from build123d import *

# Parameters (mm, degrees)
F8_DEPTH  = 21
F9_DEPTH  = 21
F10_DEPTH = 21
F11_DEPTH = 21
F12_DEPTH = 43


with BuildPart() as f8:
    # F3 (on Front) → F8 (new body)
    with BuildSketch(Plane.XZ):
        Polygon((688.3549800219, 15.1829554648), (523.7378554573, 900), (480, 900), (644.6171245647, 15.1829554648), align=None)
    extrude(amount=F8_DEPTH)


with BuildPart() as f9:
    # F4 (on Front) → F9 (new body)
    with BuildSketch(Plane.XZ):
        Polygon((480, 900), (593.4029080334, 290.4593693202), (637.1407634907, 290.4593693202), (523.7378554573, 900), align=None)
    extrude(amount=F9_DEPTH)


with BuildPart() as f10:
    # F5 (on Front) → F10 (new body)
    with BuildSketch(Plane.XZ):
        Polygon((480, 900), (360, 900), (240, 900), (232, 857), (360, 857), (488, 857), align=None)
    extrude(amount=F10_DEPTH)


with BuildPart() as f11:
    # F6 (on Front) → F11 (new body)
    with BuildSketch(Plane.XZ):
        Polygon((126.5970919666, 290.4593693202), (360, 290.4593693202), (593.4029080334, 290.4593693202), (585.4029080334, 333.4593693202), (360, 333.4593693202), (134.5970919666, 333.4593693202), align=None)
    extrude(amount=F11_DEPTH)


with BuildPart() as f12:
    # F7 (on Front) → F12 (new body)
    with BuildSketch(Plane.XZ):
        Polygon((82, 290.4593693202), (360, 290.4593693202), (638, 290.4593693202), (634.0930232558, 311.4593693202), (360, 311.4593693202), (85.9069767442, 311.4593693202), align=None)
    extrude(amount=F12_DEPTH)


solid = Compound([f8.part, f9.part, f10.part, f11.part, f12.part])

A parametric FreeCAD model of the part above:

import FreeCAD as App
import Part
import Sketcher

V = App.Vector


def add_polygon(sketch, points):
    """Adds a closed chain of lines whose ends are joined by coincident constraints."""
    first, n = sketch.GeometryCount, len(points)
    for a, b in zip(points, points[1:] + points[:1]):
        sketch.addGeometry(Part.LineSegment(App.Vector(*a, 0), App.Vector(*b, 0)), False)
    for i in range(n):
        sketch.addConstraint(Sketcher.Constraint("Coincident", first + i, 2, first + (i + 1) % n, 1))

doc = App.newDocument("Part")
body = doc.addObject("PartDesign::Body", "Body")

sketch1 = doc.addObject("Sketcher::SketchObject", "Sketch")
body.addObject(sketch1)
sketch1.AttachmentSupport = (doc.XZ_Plane, [""])
sketch1.MapMode = "FlatFace"
add_polygon(sketch1, [(688, 15), (524, 900), (480, 900), (645, 15)])
sketch1.addConstraint([
    Sketcher.Constraint("Horizontal", 1),
    Sketcher.Constraint("Horizontal", 3),
    Sketcher.Constraint("Parallel", 0, 2),
    Sketcher.Constraint("Distance", 0, 900.0),
    Sketcher.Constraint("DistanceY", -1, 1, 0, 2, 900.0),
    Sketcher.Constraint("DistanceX", -1, 1, 1, 2, 480.0),
    Sketcher.Constraint("DistanceX", 1, 2, 1, 1, 43.737855),
    Sketcher.Constraint("DistanceX", -1, 1, 3, 2, 688.35498),
])
pad1 = doc.addObject("PartDesign::Pad", "Pad")
body.addObject(pad1)
pad1.Profile = sketch1
pad1.Length = 21
body2 = doc.addObject("PartDesign::Body", "Body001")

sketch2 = doc.addObject("Sketcher::SketchObject", "Sketch001")
body2.addObject(sketch2)
sketch2.AttachmentSupport = (doc.getObject("XZ_Plane001"), [""])
sketch2.MapMode = "FlatFace"
add_polygon(sketch2, [(480, 900), (593, 290), (637, 290), (524, 900)])
sketch2.addConstraint([
    Sketcher.Constraint("Horizontal", 1),
    Sketcher.Constraint("Horizontal", 3),
    Sketcher.Constraint("Parallel", 0, 2),
    Sketcher.Constraint("Distance", 0, 620.0),
    Sketcher.Constraint("DistanceY", -1, 1, 2, 2, 900.0),
    Sketcher.Constraint("DistanceX", -1, 1, 3, 2, 480.0),
    Sketcher.Constraint("DistanceX", 1, 1, 1, 2, 43.737855),
    Sketcher.Constraint("DistanceX", -1, 1, 0, 2, 593.402908),
])
pad2 = doc.addObject("PartDesign::Pad", "Pad001")
body2.addObject(pad2)
pad2.Profile = sketch2
pad2.Length = 21
body3 = doc.addObject("PartDesign::Body", "Body002")

sketch3 = doc.addObject("Sketcher::SketchObject", "Sketch002")
body3.addObject(sketch3)
sketch3.AttachmentSupport = (doc.getObject("XZ_Plane002"), [""])
sketch3.MapMode = "FlatFace"
add_polygon(sketch3, [(480, 900), (240, 900), (232, 857), (488, 857)])
sketch3.addConstraint([
    Sketcher.Constraint("Horizontal", 0),
    Sketcher.Constraint("Horizontal", 2),
    Sketcher.Constraint("Equal", 1, 3),
    Sketcher.Constraint("DistanceX", 0, 2, 0, 1, 240.0),
    Sketcher.Constraint("DistanceX", 2, 1, 2, 2, 256.0),
    Sketcher.Constraint("DistanceX", -1, 1, 0, 2, 240.0),
    Sketcher.Constraint("DistanceY", -1, 1, 0, 2, 900.0),
    Sketcher.Constraint("DistanceY", -1, 1, 1, 2, 857.0),
])
pad3 = doc.addObject("PartDesign::Pad", "Pad002")
body3.addObject(pad3)
pad3.Profile = sketch3
pad3.Length = 21
body4 = doc.addObject("PartDesign::Body", "Body003")

sketch4 = doc.addObject("Sketcher::SketchObject", "Sketch003")
body4.addObject(sketch4)
sketch4.AttachmentSupport = (doc.getObject("XZ_Plane003"), [""])
sketch4.MapMode = "FlatFace"
add_polygon(sketch4, [(127, 290), (593, 290), (585, 333), (135, 333)])
sketch4.addConstraint([
    Sketcher.Constraint("Horizontal", 0),
    Sketcher.Constraint("Horizontal", 2),
    Sketcher.Constraint("Equal", 1, 3),
    Sketcher.Constraint("DistanceX", 1, 2, 0, 2, 8.0),
    Sketcher.Constraint("DistanceY", 0, 2, 1, 2, 43.0),
    Sketcher.Constraint("DistanceX", 0, 1, 0, 2, 466.805816),
    Sketcher.Constraint("DistanceX", -1, 1, 0, 2, 593.402908),
    Sketcher.Constraint("DistanceY", -1, 1, 0, 2, 290.459369),
])
pad4 = doc.addObject("PartDesign::Pad", "Pad003")
body4.addObject(pad4)
pad4.Profile = sketch4
pad4.Length = 21
body5 = doc.addObject("PartDesign::Body", "Body004")

sketch5 = doc.addObject("Sketcher::SketchObject", "Sketch004")
body5.addObject(sketch5)
sketch5.AttachmentSupport = (doc.getObject("XZ_Plane004"), [""])
sketch5.MapMode = "FlatFace"
add_polygon(sketch5, [(82, 290), (638, 290), (634, 311), (86, 311)])
sketch5.addConstraint([
    Sketcher.Constraint("Horizontal", 0),
    Sketcher.Constraint("Horizontal", 2),
    Sketcher.Constraint("Equal", 1, 3),
    Sketcher.Constraint("DistanceX", 0, 1, 0, 2, 556.0),
    Sketcher.Constraint("DistanceX", -1, 1, 0, 2, 638.0),
    Sketcher.Constraint("DistanceY", 0, 2, 1, 2, 21.0),
    Sketcher.Constraint("Distance", 1, 21.360348),
    Sketcher.Constraint("DistanceY", -1, 1, 0, 2, 290.459369),
])
pad5 = doc.addObject("PartDesign::Pad", "Pad004")
body5.addObject(pad5)
pad5.Profile = sketch5
pad5.Length = 43

doc.recompute()
